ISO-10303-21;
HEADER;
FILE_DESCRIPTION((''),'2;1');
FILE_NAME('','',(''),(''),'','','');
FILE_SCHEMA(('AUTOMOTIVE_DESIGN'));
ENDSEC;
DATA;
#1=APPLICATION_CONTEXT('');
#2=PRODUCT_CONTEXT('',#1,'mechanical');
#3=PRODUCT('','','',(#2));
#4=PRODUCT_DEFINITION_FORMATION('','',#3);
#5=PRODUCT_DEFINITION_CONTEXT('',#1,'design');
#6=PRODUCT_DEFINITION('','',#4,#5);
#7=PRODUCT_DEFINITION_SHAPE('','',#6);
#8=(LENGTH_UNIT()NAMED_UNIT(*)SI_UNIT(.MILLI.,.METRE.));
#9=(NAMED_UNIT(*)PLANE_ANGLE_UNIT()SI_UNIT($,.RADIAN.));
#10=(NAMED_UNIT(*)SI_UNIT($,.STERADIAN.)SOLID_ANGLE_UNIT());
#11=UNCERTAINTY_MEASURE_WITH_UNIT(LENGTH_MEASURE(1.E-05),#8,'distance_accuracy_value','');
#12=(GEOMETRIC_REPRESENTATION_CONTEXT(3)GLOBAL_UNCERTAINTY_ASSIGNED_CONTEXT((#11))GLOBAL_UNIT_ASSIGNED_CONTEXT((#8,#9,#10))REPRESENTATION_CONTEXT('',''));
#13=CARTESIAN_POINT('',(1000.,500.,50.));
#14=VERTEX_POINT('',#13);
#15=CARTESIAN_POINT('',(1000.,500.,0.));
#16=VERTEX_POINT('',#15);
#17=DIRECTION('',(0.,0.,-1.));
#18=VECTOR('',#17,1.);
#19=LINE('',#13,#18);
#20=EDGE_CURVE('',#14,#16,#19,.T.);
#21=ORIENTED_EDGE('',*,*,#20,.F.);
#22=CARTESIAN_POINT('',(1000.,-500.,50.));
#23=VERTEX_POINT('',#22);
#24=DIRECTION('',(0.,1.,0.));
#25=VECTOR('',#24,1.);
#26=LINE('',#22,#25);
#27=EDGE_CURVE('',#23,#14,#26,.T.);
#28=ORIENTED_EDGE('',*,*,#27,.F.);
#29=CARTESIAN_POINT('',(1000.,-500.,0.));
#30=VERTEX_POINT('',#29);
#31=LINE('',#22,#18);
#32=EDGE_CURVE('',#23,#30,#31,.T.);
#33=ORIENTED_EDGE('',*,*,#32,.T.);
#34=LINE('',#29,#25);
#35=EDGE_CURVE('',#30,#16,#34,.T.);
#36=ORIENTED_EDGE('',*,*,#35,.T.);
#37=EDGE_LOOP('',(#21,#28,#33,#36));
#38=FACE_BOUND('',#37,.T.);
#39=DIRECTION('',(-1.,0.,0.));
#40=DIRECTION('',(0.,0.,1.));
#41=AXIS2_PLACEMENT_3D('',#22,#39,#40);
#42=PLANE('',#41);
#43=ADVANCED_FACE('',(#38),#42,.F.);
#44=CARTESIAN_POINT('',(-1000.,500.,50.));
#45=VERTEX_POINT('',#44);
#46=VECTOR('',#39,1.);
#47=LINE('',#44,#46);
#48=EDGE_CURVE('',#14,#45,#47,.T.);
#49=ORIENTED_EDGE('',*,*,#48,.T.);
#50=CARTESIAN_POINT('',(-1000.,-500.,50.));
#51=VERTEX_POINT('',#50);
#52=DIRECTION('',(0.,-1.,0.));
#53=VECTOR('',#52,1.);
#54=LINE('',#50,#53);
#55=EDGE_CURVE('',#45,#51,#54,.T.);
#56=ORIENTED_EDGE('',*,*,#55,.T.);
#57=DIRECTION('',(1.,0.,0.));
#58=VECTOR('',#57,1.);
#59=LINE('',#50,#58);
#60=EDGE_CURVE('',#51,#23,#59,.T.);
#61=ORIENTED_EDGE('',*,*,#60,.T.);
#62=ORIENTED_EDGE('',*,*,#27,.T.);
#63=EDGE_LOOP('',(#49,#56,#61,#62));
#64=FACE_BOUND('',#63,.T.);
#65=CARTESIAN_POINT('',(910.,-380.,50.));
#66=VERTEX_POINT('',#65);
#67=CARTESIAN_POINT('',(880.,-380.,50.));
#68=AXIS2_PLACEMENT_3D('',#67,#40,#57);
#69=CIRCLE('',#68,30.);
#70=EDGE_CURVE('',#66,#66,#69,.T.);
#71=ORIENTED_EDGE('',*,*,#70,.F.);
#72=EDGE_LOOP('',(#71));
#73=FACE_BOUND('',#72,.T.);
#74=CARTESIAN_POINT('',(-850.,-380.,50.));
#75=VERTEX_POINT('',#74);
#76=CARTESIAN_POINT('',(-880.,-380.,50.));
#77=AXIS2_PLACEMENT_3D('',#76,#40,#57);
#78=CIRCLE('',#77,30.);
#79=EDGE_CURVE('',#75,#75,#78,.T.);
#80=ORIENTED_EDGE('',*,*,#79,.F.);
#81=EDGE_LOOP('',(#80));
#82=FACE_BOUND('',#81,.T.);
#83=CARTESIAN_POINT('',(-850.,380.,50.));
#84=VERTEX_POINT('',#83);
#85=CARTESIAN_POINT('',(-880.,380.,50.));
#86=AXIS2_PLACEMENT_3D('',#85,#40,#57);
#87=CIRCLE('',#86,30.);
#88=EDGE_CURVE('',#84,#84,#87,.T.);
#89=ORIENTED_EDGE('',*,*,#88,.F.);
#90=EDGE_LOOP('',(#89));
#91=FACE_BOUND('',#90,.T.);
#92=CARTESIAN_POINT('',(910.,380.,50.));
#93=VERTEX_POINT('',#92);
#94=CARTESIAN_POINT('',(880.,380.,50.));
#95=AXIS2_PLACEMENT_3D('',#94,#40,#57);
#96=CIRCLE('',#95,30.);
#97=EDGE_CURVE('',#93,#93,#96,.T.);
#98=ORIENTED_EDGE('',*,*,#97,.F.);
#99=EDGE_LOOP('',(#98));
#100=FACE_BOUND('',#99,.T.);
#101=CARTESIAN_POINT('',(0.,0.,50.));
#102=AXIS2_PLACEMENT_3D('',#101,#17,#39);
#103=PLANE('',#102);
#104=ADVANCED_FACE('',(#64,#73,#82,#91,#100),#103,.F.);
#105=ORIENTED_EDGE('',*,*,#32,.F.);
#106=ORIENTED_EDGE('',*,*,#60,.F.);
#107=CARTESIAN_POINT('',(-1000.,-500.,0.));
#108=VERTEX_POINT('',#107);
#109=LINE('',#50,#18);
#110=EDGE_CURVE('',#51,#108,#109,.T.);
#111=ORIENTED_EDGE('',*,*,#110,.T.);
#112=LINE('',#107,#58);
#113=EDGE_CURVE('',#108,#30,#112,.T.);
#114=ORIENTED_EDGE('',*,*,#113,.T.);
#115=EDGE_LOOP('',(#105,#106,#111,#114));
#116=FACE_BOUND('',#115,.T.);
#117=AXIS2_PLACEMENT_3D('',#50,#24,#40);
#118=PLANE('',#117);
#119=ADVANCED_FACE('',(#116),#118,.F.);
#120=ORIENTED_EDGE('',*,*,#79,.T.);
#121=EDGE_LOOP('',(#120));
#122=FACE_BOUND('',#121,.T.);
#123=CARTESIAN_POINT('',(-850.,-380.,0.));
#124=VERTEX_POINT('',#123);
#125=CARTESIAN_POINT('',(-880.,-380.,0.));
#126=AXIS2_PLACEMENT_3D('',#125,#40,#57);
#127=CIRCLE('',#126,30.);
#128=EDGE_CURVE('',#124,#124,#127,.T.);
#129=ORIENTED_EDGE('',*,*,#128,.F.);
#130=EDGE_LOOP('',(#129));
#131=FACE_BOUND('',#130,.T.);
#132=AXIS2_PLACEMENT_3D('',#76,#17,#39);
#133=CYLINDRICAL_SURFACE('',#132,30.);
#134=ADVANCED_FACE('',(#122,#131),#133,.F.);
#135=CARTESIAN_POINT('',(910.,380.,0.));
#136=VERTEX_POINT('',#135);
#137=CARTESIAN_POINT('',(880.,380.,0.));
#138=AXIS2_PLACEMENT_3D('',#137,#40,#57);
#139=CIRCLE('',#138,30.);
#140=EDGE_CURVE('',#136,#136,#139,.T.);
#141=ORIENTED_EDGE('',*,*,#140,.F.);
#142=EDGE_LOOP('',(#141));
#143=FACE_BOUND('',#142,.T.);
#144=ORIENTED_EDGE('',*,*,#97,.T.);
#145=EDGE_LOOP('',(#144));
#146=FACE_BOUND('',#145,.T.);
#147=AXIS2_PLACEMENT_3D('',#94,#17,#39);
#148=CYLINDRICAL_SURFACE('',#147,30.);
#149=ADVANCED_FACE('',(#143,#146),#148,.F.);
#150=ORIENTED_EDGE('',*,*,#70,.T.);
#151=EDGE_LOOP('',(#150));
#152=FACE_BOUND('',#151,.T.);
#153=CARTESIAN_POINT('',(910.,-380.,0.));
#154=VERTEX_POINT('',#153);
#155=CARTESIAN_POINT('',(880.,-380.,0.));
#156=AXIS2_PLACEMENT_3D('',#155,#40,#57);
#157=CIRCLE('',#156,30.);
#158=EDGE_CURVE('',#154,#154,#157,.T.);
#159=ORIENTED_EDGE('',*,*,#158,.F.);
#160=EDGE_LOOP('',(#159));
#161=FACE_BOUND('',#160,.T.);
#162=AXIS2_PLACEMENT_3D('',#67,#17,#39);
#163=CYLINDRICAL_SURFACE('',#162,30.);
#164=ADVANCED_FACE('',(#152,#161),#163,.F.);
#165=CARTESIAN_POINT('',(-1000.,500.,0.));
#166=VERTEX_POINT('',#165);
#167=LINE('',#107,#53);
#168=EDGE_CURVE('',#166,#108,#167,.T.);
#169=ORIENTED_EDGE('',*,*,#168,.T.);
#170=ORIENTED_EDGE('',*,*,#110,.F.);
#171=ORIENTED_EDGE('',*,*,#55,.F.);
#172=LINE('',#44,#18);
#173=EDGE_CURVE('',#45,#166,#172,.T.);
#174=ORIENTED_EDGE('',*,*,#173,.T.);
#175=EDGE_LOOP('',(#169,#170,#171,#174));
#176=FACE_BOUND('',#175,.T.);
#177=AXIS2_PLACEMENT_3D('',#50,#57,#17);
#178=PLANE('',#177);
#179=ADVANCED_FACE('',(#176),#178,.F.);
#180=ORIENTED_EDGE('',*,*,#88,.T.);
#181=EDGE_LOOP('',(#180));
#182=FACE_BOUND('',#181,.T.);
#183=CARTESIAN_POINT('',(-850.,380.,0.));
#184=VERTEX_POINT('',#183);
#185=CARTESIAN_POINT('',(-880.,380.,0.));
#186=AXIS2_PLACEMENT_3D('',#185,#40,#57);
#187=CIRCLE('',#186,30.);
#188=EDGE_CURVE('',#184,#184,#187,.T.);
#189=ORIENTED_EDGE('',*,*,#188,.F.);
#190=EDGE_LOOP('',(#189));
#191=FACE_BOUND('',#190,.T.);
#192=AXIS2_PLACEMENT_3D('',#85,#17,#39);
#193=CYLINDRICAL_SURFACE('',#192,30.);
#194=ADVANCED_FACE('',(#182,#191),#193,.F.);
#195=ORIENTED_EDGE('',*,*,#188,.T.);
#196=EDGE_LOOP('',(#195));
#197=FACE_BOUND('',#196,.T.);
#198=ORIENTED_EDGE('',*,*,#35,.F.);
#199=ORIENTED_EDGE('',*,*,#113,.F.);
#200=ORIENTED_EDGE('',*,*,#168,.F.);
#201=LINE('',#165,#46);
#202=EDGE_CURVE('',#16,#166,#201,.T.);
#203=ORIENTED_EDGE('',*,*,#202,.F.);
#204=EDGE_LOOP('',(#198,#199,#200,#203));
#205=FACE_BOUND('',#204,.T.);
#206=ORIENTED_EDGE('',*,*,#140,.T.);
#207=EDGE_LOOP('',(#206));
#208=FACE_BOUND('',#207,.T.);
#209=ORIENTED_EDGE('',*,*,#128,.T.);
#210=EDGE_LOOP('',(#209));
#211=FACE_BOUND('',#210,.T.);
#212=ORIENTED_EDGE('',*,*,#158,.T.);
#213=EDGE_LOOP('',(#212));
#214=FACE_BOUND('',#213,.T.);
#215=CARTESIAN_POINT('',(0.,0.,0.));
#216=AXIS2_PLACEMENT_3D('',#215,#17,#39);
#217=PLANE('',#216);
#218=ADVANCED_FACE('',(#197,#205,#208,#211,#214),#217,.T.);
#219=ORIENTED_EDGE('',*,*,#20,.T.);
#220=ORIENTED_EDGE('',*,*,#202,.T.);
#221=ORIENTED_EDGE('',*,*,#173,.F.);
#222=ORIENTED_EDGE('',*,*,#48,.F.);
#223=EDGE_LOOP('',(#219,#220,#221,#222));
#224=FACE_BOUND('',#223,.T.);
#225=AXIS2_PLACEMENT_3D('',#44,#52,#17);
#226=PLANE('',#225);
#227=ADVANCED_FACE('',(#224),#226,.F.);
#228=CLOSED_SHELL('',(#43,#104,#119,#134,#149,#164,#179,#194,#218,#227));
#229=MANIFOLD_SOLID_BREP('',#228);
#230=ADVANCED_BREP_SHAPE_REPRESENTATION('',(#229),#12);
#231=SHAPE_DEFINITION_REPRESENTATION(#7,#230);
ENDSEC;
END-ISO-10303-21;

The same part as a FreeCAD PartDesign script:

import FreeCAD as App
import Part
import Sketcher


def add_polygon(sketch, points):
    """Adds a closed chain of lines whose ends are joined by coincident constraints."""
    first, n = sketch.GeometryCount, len(points)
    for a, b in zip(points, points[1:] + points[:1]):
        sketch.addGeometry(Part.LineSegment(App.Vector(*a, 0), App.Vector(*b, 0)), False)
    for i in range(n):
        sketch.addConstraint(Sketcher.Constraint("Coincident", first + i, 2, first + (i + 1) % n, 1))

doc = App.newDocument("Part")
body = doc.addObject("PartDesign::Body", "Body")

# Sketch on XY plane
sketch1 = doc.addObject("Sketcher::SketchObject", "Sketch")
body.addObject(sketch1)
sketch1.AttachmentSupport = (doc.XY_Plane, [""])
sketch1.MapMode = "FlatFace"
add_polygon(sketch1, [(-1000, 500), (-1000, -500), (1000, -500), (1000, 500)])  # lines 0-3
sketch1.addConstraint(Sketcher.Constraint("Vertical", 0))
sketch1.addConstraint(Sketcher.Constraint("Horizontal", 1))
sketch1.addConstraint(Sketcher.Constraint("Vertical", 2))
sketch1.addConstraint(Sketcher.Constraint("Horizontal", 3))
sketch1.addConstraint(Sketcher.Constraint("Symmetric", 0, 2, 2, 2, -1, 1))
sketch1.addConstraint(Sketcher.Constraint("DistanceX", 1, 1, 1, 2, 2000.0))
sketch1.addConstraint(Sketcher.Constraint("DistanceY", 0, 2, 0, 1, 1000.0))
pad1 = doc.addObject("PartDesign::Pad", "Pad")
body.addObject(pad1)
pad1.Profile = sketch1
pad1.Length = 50

# Sketch on XY plane
sketch2 = doc.addObject("Sketcher::SketchObject", "Sketch001")
body.addObject(sketch2)
sketch2.AttachmentSupport = (doc.XY_Plane, [""])
sketch2.MapMode = "FlatFace"
sketch2.addGeometry(Part.Circle(App.Vector(880, 380, 0), App.Vector(0, 0, 1), 30), False)
sketch2.addConstraint(Sketcher.Constraint("Diameter", 0, 60.0))
sketch2.addConstraint(Sketcher.Constraint("DistanceX", -1, 1, 0, 3, 880.0))
sketch2.addConstraint(Sketcher.Constraint("DistanceY", -1, 1, 0, 3, 380.0))
pocket1 = doc.addObject("PartDesign::Pocket", "Pocket")
body.addObject(pocket1)
pocket1.Profile = sketch2
pocket1.Type = "ThroughAll"
pocket1.Reversed = True

# Sketch on XY plane
sketch3 = doc.addObject("Sketcher::SketchObject", "Sketch002")
body.addObject(sketch3)
sketch3.AttachmentSupport = (doc.XY_Plane, [""])
sketch3.MapMode = "FlatFace"
sketch3.addGeometry(Part.Circle(App.Vector(880, -380, 0), App.Vector(0, 0, 1), 30), False)
sketch3.addConstraint(Sketcher.Constraint("Diameter", 0, 60.0))
sketch3.addConstraint(Sketcher.Constraint("DistanceX", -1, 1, 0, 3, 880.0))
sketch3.addConstraint(Sketcher.Constraint("DistanceY", 0, 3, -1, 1, 380.0))
pocket2 = doc.addObject("PartDesign::Pocket", "Pocket001")
body.addObject(pocket2)
pocket2.Profile = sketch3
pocket2.Type = "ThroughAll"
pocket2.Reversed = True

# Sketch on XY plane
sketch4 = doc.addObject("Sketcher::SketchObject", "Sketch003")
body.addObject(sketch4)
sketch4.AttachmentSupport = (doc.XY_Plane, [""])
sketch4.MapMode = "FlatFace"
sketch4.addGeometry(Part.Circle(App.Vector(-880, 380, 0), App.Vector(0, 0, 1), 30), False)
sketch4.addConstraint(Sketcher.Constraint("Diameter", 0, 60.0))
sketch4.addConstraint(Sketcher.Constraint("DistanceX", 0, 3, -1, 1, 880.0))
sketch4.addConstraint(Sketcher.Constraint("DistanceY", -1, 1, 0, 3, 380.0))
pocket3 = doc.addObject("PartDesign::Pocket", "Pocket002")
body.addObject(pocket3)
pocket3.Profile = sketch4
pocket3.Type = "ThroughAll"
pocket3.Reversed = True

# Sketch on XY plane
sketch5 = doc.addObject("Sketcher::SketchObject", "Sketch004")
body.addObject(sketch5)
sketch5.AttachmentSupport = (doc.XY_Plane, [""])
sketch5.MapMode = "FlatFace"
sketch5.addGeometry(Part.Circle(App.Vector(-880, -380, 0), App.Vector(0, 0, 1), 30), False)
sketch5.addConstraint(Sketcher.Constraint("Diameter", 0, 60.0))
sketch5.addConstraint(Sketcher.Constraint("DistanceX", 0, 3, -1, 1, 880.0))
sketch5.addConstraint(Sketcher.Constraint("DistanceY", 0, 3, -1, 1, 380.0))
pocket4 = doc.addObject("PartDesign::Pocket", "Pocket003")
body.addObject(pocket4)
pocket4.Profile = sketch5
pocket4.Type = "ThroughAll"
pocket4.Reversed = True

doc.recompute()
